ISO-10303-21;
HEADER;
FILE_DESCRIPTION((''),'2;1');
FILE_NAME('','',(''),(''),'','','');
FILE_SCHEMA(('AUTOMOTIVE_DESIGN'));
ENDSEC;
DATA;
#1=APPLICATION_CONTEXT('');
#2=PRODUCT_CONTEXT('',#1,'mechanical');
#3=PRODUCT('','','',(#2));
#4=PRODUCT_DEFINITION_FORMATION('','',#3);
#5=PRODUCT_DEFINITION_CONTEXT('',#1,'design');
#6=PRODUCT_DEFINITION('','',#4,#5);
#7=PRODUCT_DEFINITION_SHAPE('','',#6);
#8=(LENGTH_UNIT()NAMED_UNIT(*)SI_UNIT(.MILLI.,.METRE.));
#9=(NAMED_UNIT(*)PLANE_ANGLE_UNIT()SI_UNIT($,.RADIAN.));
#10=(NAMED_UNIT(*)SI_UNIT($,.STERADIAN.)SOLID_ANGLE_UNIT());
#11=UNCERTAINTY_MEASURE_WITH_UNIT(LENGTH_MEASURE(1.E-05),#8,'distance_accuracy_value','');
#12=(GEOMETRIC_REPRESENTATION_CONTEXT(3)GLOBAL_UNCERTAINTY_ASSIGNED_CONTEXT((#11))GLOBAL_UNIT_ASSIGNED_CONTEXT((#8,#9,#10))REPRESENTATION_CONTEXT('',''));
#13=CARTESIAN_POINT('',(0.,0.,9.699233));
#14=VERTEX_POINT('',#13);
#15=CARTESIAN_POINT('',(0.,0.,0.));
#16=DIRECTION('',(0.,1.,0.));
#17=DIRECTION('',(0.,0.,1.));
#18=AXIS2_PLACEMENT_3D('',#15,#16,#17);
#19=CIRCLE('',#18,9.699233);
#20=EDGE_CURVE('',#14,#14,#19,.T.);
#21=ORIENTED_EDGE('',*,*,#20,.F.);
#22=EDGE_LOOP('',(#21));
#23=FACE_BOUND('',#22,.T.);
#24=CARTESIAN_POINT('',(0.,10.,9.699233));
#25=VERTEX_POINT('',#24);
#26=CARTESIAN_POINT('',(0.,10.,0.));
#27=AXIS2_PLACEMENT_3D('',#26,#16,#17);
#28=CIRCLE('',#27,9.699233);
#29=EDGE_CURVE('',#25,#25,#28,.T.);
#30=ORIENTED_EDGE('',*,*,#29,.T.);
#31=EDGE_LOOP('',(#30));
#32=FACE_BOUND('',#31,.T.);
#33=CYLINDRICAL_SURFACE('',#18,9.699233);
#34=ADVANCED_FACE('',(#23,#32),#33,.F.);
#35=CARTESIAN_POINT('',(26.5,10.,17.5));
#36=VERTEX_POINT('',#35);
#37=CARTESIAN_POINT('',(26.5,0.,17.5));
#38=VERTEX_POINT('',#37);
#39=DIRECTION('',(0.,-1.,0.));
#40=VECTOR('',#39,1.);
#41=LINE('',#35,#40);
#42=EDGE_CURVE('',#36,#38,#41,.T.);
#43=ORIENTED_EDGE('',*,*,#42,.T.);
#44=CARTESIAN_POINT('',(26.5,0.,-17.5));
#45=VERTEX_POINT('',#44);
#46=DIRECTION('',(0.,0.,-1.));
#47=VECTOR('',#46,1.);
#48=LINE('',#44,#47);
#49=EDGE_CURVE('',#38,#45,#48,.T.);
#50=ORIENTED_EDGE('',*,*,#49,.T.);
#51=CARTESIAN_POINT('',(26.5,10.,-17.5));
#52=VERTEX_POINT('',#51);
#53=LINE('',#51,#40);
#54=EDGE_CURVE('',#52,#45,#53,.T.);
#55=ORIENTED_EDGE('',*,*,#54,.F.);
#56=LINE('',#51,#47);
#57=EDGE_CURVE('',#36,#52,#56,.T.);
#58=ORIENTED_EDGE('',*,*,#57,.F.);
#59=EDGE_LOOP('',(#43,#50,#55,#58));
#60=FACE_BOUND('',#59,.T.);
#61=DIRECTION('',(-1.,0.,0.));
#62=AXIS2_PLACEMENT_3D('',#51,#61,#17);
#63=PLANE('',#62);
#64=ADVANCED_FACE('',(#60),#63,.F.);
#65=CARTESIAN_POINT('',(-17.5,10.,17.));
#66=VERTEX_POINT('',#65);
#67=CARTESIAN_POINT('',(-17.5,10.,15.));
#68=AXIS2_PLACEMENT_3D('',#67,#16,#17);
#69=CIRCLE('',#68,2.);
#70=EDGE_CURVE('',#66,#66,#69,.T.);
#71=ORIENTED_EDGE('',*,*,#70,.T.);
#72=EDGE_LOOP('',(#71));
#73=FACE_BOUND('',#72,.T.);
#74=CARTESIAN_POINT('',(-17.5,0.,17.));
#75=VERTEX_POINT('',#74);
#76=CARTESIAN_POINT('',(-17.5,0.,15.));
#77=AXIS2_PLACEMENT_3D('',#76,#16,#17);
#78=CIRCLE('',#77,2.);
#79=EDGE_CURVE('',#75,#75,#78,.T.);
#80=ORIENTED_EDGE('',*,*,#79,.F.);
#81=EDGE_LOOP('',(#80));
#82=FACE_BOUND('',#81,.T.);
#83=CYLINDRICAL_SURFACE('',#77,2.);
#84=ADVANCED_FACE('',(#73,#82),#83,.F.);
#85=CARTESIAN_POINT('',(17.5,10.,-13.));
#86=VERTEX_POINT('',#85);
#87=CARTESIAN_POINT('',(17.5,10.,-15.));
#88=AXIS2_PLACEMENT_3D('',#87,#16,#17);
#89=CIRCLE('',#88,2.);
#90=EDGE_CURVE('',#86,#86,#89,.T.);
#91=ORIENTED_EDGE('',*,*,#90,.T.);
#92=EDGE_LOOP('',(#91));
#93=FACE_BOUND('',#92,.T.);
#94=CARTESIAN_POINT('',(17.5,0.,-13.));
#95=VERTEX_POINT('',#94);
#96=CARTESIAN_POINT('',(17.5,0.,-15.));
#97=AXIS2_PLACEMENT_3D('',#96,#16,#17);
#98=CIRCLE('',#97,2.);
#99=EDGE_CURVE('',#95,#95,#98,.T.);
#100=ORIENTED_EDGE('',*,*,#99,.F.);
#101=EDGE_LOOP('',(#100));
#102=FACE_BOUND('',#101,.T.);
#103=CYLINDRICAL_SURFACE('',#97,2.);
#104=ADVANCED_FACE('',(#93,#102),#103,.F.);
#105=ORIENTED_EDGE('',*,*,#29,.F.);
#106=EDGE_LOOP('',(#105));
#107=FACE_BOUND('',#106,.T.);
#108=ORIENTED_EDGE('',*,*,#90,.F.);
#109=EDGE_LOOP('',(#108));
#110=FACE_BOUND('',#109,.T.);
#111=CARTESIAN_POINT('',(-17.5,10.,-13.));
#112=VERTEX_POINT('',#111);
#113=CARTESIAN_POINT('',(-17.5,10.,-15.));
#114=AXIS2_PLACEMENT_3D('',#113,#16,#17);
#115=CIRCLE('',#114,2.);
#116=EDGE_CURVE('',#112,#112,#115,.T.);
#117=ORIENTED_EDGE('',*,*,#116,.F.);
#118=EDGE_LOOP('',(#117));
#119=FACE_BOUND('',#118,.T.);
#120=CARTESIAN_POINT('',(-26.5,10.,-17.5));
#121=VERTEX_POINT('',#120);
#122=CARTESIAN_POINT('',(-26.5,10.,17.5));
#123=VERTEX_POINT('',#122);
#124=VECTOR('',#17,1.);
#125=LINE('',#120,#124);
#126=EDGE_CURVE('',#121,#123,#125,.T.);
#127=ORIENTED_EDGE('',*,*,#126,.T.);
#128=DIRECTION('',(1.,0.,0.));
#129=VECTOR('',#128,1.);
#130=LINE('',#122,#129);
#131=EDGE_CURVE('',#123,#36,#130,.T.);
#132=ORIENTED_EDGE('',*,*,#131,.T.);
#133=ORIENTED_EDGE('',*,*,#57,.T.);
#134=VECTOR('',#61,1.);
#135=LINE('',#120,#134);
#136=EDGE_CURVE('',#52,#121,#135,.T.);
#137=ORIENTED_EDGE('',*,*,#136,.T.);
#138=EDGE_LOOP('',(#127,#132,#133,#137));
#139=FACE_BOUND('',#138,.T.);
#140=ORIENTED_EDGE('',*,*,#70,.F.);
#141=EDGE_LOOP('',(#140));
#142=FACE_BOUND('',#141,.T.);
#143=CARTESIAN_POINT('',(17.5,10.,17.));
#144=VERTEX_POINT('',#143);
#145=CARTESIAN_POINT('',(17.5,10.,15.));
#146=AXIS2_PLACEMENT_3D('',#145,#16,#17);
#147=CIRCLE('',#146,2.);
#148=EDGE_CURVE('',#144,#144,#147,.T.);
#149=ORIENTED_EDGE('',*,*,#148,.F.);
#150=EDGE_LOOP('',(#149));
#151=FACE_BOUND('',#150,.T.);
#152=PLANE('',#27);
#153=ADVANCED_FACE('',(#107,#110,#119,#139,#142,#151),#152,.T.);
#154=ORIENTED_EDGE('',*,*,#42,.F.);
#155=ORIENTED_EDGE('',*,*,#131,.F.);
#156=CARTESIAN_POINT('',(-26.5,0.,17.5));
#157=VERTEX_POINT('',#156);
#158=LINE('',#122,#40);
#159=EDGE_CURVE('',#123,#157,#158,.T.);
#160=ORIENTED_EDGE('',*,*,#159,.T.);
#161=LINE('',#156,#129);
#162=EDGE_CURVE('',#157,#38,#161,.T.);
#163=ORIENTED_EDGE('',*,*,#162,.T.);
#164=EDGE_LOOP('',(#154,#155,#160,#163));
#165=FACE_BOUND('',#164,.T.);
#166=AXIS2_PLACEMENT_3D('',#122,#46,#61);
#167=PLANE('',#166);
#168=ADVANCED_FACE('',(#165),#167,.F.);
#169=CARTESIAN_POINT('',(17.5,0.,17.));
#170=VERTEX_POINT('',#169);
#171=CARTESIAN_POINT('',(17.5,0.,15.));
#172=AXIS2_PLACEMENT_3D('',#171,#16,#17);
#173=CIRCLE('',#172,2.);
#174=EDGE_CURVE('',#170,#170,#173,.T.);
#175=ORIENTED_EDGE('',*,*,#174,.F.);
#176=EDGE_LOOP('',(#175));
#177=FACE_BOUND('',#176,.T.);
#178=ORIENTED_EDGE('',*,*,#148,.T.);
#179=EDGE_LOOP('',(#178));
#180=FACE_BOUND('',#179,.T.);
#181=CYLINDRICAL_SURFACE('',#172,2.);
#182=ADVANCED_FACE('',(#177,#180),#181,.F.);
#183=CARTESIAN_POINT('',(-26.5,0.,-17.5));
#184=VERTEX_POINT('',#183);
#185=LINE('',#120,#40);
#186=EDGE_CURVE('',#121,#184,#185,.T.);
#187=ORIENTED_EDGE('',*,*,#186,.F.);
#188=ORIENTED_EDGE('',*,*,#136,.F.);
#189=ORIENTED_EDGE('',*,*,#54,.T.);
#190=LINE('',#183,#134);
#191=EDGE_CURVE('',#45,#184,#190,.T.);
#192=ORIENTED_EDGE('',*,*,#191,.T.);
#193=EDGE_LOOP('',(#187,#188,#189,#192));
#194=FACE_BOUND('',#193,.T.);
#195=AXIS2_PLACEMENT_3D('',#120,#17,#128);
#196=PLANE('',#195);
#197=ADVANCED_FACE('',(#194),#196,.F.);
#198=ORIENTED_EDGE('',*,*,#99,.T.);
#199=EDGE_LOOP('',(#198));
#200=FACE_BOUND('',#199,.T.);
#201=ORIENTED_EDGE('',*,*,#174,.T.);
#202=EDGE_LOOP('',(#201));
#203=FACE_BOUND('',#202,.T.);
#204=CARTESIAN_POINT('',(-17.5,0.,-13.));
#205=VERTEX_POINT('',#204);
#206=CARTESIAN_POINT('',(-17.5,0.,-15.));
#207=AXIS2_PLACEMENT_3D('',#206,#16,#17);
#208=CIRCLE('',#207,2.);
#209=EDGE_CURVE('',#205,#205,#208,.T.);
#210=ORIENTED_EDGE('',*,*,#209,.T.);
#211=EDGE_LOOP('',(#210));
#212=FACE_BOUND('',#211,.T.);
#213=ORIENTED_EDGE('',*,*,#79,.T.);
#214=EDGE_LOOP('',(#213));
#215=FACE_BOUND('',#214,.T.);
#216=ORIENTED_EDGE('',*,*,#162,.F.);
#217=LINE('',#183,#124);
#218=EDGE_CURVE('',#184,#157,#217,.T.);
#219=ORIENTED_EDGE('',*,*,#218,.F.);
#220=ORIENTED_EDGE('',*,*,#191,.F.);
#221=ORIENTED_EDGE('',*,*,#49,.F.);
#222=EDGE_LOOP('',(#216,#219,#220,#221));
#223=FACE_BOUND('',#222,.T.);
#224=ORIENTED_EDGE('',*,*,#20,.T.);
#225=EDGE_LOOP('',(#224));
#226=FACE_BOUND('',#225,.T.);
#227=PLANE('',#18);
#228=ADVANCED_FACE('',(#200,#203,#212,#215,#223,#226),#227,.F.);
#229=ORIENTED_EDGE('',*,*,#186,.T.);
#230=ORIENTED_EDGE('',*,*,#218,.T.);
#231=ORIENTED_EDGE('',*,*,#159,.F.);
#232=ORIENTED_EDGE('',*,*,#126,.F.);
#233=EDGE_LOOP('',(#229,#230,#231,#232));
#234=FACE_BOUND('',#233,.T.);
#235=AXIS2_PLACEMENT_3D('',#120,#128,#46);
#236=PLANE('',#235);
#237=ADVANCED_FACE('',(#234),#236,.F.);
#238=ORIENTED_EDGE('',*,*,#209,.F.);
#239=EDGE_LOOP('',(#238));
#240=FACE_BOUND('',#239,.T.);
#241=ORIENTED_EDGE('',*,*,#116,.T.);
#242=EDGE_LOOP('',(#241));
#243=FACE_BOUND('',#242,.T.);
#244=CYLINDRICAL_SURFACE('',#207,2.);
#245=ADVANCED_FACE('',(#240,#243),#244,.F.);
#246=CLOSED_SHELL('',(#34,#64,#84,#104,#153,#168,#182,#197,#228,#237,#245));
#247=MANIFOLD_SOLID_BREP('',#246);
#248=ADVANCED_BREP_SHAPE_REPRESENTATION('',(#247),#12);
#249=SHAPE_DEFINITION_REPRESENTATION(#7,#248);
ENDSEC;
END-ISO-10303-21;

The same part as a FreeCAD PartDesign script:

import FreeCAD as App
import Part
import Sketcher

V = App.Vector
Q = App.Units.Quantity

doc = App.newDocument("Part")
body = doc.addObject("PartDesign::Body", "Body")

# Sketch on XZ plane
sketch1 = body.newObject("Sketcher::SketchObject", "Sketch")
sketch1.AttachmentSupport = (doc.getObject("XZ_Plane"), [""])
sketch1.MapMode = "FlatFace"
sketch1.addGeometry([
    Part.LineSegment(V(-26.5, -17.5, 0), V(-26.5, 17.5, 0)),
    Part.LineSegment(V(-26.5, 17.5, 0), V(26.5, 17.5, 0)),
    Part.LineSegment(V(26.5, 17.5, 0), V(26.5, -17.5, 0)),
    Part.LineSegment(V(26.5, -17.5, 0), V(-26.5, -17.5, 0)),
], False)
sketch1.addConstraint([
    Sketcher.Constraint("Coincident", 0, 2, 1, 1),
    Sketcher.Constraint("Coincident", 1, 2, 2, 1),
    Sketcher.Constraint("Coincident", 2, 2, 3, 1),
    Sketcher.Constraint("Coincident", 3, 2, 0, 1),
    Sketcher.Constraint("Vertical", 0),
    Sketcher.Constraint("Horizontal", 1),
    Sketcher.Constraint("Vertical", 2),
    Sketcher.Constraint("Horizontal", 3),
    Sketcher.Constraint("Symmetric", 0, 2, 2, 2, -1, 1),
    Sketcher.Constraint("DistanceX", 1, 1, 1, 2, Q("53 mm")),
    Sketcher.Constraint("DistanceY", 0, 1, 0, 2, Q("35 mm")),
])
pad1 = body.newObject("PartDesign::Pad", "Pad")
pad1.Profile = sketch1
pad1.Length = 10
pad1.Reversed = True

# Sketch on XZ plane
sketch2 = body.newObject("Sketcher::SketchObject", "Sketch001")
sketch2.AttachmentSupport = (doc.getObject("XZ_Plane"), [""])
sketch2.MapMode = "FlatFace"
sketch2.AttachmentOffset = App.Placement(V(0, 0, -10), App.Rotation())
sketch2.addGeometry([
    Part.Circle(V(-17.5, -15, 0), V(0, 0, 1), 2),  # 0
    Part.Circle(V(17.5, -15, 0), V(0, 0, 1), 2),  # 1
    Part.Circle(V(-17.5, 15, 0), V(0, 0, 1), 2),  # 2
    Part.Circle(V(17.5, 15, 0), V(0, 0, 1), 2),  # 3
    Part.Circle(V(0, 0, 0), V(0, 0, 1), 9.699233),  # 4
], False)
sketch2.addConstraint([
    Sketcher.Constraint("Coincident", 4, 3, -1, 1),
    Sketcher.Constraint("Equal", 0, 1),
    Sketcher.Constraint("Equal", 1, 2),
    Sketcher.Constraint("Equal", 2, 3),
    Sketcher.Constraint("Symmetric", 1, 3, 2, 3, -1, 1),
    Sketcher.Constraint("Symmetric", 0, 3, 3, 3, -1, 1),
    Sketcher.Constraint("Symmetric", 0, 3, 1, 3, -2),
    Sketcher.Constraint("Diameter", 0, Q("4 mm")),
    Sketcher.Constraint("DistanceY", 0, 3, -1, 1, Q("15 mm")),
    Sketcher.Constraint("DistanceX", 0, 3, 1, 3, Q("35 mm")),
    Sketcher.Constraint("Diameter", 4, Q("19.398467 mm")),
])
pocket1 = body.newObject("PartDesign::Pocket", "Pocket")
pocket1.Profile = sketch2
pocket1.Type = "ThroughAll"
pocket1.Reversed = True

doc.recompute()
